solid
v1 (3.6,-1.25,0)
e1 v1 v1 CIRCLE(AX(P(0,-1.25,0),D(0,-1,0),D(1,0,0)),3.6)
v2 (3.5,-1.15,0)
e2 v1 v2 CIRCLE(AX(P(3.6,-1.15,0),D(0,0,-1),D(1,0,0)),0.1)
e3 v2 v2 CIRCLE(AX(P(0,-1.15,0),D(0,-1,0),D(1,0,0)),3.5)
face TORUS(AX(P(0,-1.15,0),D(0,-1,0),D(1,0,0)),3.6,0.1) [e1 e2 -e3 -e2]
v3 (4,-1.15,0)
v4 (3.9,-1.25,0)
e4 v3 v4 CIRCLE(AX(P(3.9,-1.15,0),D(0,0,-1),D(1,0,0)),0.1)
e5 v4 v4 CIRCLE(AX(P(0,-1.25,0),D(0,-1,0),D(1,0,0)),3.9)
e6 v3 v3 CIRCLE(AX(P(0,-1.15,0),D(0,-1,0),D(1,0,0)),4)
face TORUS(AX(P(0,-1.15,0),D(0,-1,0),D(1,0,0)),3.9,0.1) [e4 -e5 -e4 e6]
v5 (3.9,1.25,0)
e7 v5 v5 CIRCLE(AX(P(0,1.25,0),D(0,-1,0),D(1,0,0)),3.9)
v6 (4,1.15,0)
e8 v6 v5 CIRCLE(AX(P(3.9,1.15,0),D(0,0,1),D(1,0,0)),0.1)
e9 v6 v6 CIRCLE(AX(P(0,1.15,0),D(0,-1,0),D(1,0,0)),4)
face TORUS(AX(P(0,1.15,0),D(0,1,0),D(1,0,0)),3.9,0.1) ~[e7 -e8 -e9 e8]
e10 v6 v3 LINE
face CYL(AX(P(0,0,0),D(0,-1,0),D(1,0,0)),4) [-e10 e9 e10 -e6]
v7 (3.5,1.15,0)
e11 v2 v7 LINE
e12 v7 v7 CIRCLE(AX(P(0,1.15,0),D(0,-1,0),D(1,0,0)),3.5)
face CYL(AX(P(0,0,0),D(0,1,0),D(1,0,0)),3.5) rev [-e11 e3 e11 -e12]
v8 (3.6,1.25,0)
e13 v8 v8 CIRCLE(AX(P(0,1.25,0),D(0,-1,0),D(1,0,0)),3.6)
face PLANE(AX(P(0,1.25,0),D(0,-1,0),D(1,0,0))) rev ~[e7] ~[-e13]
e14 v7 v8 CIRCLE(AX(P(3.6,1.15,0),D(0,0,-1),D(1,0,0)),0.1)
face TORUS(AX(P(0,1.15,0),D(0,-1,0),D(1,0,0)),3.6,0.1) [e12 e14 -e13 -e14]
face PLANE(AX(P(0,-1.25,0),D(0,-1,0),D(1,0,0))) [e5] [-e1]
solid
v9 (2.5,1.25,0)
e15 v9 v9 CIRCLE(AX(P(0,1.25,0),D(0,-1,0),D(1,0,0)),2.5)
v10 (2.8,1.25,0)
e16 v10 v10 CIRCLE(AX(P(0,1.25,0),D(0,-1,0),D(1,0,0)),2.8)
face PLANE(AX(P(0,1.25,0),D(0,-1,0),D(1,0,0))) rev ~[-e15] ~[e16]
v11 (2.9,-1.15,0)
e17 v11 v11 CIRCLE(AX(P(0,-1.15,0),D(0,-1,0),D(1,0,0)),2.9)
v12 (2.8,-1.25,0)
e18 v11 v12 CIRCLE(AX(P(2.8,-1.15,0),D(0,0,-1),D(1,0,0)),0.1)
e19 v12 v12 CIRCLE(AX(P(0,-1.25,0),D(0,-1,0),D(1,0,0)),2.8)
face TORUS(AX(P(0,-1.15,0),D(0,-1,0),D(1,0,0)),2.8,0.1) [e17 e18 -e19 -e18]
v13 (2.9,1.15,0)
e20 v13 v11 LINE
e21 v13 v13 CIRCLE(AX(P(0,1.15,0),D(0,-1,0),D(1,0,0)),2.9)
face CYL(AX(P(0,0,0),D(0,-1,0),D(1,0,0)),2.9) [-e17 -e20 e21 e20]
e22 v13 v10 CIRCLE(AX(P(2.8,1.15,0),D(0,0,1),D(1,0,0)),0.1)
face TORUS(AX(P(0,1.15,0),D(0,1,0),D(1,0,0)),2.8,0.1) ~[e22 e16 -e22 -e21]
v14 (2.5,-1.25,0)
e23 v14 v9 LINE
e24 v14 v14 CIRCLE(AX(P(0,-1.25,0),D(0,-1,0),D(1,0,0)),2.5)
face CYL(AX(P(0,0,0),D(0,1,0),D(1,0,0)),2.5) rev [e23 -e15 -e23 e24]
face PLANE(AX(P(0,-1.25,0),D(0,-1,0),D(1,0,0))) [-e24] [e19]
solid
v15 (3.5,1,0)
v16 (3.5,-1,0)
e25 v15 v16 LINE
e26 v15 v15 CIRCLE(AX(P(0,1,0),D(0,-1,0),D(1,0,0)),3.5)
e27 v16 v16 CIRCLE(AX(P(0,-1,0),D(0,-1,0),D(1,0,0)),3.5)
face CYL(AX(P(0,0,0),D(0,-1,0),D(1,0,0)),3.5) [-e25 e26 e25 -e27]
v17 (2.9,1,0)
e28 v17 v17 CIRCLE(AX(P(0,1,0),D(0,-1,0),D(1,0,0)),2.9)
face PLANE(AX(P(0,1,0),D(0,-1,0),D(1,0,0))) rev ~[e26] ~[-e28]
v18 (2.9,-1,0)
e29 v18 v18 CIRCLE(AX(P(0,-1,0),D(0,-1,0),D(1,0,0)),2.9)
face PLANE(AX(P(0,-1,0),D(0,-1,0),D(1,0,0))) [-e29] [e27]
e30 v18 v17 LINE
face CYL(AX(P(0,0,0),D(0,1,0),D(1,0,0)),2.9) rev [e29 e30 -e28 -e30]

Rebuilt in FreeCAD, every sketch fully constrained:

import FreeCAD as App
import Part
import Sketcher

V = App.Vector
Q = App.Units.Quantity


def edges_at(feature, points):
    """Names of the edges that pass closest to the given points."""
    edges = feature.Shape.Edges
    near = lambda p: min(range(len(edges)), key=lambda i: edges[i].distToShape(Part.Vertex(*p))[0])
    return sorted({f"Edge{near(p) + 1}" for p in points})

doc = App.newDocument("Part")
body = doc.addObject("PartDesign::Body", "Body")

# Sketch on XZ plane
sketch1 = body.newObject("Sketcher::SketchObject", "Sketch")
sketch1.AttachmentSupport = (doc.getObject("XZ_Plane"), [""])
sketch1.MapMode = "FlatFace"
sketch1.addGeometry([
    Part.Circle(V(0, 0, 0), V(0, 0, 1), 2.9),
    Part.Circle(V(0, 0, 0), V(0, 0, 1), 2.5),
], False)
sketch1.addConstraint([
    Sketcher.Constraint("Coincident", 0, 3, -1, 1),
    Sketcher.Constraint("Coincident", 1, 3, -1, 1),
    Sketcher.Constraint("Diameter", 1, Q("5 mm")),
    Sketcher.Constraint("Diameter", 0, Q("5.8 mm")),
])
pad1 = body.newObject("PartDesign::Pad", "Pad")
pad1.Profile = sketch1
pad1.Length = 2.5
pad1.Midplane = True
doc.recompute()

fillet = body.newObject("PartDesign::Fillet", "Fillet")
fillet.Base = (pad1, edges_at(pad1, [(-2.9, 1.25, 0), (-2.9, -1.25, 0)]))
fillet.Radius = 0.1
body2 = doc.addObject("PartDesign::Body", "Body001")

# Sketch on XZ plane
sketch2 = body2.newObject("Sketcher::SketchObject", "Sketch001")
sketch2.AttachmentSupport = (doc.getObject("XZ_Plane001"), [""])
sketch2.MapMode = "FlatFace"
sketch2.addGeometry([
    Part.Circle(V(0, 0, 0), V(0, 0, 1), 4),
    Part.Circle(V(0, 0, 0), V(0, 0, 1), 3.5),
], False)
sketch2.addConstraint([
    Sketcher.Constraint("Coincident", 0, 3, -1, 1),
    Sketcher.Constraint("Coincident", 1, 3, -1, 1),
    Sketcher.Constraint("Diameter", 0, Q("8 mm")),
    Sketcher.Constraint("Diameter", 1, Q("7 mm")),
])
pad2 = body2.newObject("PartDesign::Pad", "Pad001")
pad2.Profile = sketch2
pad2.Length = 2.5
pad2.Midplane = True
doc.recompute()

fillet2 = body2.newObject("PartDesign::Fillet", "Fillet001")
fillet2.Base = (pad2, edges_at(pad2, [
    (-4, 1.25, 0),
    (-3.5, 1.25, 0),
    (-4, -1.25, 0),
    (-3.5, -1.25, 0),
]))
fillet2.Radius = 0.1
body3 = doc.addObject("PartDesign::Body", "Body002")

# Sketch on XZ plane
sketch3 = body3.newObject("Sketcher::SketchObject", "Sketch002")
sketch3.AttachmentSupport = (doc.getObject("XZ_Plane002"), [""])
sketch3.MapMode = "FlatFace"
sketch3.addGeometry([
    Part.Circle(V(0, 0, 0), V(0, 0, 1), 3.5),
    Part.Circle(V(0, 0, 0), V(0, 0, 1), 2.9),
], False)
sketch3.addConstraint([
    Sketcher.Constraint("Coincident", 0, 3, -1, 1),
    Sketcher.Constraint("Coincident", 1, 3, -1, 1),
    Sketcher.Constraint("Diameter", 0, Q("7 mm")),
    Sketcher.Constraint("Diameter", 1, Q("5.8 mm")),
])
pad3 = body3.newObject("PartDesign::Pad", "Pad002")
pad3.Profile = sketch3
pad3.Length = 2
pad3.Midplane = True

doc.recompute()
